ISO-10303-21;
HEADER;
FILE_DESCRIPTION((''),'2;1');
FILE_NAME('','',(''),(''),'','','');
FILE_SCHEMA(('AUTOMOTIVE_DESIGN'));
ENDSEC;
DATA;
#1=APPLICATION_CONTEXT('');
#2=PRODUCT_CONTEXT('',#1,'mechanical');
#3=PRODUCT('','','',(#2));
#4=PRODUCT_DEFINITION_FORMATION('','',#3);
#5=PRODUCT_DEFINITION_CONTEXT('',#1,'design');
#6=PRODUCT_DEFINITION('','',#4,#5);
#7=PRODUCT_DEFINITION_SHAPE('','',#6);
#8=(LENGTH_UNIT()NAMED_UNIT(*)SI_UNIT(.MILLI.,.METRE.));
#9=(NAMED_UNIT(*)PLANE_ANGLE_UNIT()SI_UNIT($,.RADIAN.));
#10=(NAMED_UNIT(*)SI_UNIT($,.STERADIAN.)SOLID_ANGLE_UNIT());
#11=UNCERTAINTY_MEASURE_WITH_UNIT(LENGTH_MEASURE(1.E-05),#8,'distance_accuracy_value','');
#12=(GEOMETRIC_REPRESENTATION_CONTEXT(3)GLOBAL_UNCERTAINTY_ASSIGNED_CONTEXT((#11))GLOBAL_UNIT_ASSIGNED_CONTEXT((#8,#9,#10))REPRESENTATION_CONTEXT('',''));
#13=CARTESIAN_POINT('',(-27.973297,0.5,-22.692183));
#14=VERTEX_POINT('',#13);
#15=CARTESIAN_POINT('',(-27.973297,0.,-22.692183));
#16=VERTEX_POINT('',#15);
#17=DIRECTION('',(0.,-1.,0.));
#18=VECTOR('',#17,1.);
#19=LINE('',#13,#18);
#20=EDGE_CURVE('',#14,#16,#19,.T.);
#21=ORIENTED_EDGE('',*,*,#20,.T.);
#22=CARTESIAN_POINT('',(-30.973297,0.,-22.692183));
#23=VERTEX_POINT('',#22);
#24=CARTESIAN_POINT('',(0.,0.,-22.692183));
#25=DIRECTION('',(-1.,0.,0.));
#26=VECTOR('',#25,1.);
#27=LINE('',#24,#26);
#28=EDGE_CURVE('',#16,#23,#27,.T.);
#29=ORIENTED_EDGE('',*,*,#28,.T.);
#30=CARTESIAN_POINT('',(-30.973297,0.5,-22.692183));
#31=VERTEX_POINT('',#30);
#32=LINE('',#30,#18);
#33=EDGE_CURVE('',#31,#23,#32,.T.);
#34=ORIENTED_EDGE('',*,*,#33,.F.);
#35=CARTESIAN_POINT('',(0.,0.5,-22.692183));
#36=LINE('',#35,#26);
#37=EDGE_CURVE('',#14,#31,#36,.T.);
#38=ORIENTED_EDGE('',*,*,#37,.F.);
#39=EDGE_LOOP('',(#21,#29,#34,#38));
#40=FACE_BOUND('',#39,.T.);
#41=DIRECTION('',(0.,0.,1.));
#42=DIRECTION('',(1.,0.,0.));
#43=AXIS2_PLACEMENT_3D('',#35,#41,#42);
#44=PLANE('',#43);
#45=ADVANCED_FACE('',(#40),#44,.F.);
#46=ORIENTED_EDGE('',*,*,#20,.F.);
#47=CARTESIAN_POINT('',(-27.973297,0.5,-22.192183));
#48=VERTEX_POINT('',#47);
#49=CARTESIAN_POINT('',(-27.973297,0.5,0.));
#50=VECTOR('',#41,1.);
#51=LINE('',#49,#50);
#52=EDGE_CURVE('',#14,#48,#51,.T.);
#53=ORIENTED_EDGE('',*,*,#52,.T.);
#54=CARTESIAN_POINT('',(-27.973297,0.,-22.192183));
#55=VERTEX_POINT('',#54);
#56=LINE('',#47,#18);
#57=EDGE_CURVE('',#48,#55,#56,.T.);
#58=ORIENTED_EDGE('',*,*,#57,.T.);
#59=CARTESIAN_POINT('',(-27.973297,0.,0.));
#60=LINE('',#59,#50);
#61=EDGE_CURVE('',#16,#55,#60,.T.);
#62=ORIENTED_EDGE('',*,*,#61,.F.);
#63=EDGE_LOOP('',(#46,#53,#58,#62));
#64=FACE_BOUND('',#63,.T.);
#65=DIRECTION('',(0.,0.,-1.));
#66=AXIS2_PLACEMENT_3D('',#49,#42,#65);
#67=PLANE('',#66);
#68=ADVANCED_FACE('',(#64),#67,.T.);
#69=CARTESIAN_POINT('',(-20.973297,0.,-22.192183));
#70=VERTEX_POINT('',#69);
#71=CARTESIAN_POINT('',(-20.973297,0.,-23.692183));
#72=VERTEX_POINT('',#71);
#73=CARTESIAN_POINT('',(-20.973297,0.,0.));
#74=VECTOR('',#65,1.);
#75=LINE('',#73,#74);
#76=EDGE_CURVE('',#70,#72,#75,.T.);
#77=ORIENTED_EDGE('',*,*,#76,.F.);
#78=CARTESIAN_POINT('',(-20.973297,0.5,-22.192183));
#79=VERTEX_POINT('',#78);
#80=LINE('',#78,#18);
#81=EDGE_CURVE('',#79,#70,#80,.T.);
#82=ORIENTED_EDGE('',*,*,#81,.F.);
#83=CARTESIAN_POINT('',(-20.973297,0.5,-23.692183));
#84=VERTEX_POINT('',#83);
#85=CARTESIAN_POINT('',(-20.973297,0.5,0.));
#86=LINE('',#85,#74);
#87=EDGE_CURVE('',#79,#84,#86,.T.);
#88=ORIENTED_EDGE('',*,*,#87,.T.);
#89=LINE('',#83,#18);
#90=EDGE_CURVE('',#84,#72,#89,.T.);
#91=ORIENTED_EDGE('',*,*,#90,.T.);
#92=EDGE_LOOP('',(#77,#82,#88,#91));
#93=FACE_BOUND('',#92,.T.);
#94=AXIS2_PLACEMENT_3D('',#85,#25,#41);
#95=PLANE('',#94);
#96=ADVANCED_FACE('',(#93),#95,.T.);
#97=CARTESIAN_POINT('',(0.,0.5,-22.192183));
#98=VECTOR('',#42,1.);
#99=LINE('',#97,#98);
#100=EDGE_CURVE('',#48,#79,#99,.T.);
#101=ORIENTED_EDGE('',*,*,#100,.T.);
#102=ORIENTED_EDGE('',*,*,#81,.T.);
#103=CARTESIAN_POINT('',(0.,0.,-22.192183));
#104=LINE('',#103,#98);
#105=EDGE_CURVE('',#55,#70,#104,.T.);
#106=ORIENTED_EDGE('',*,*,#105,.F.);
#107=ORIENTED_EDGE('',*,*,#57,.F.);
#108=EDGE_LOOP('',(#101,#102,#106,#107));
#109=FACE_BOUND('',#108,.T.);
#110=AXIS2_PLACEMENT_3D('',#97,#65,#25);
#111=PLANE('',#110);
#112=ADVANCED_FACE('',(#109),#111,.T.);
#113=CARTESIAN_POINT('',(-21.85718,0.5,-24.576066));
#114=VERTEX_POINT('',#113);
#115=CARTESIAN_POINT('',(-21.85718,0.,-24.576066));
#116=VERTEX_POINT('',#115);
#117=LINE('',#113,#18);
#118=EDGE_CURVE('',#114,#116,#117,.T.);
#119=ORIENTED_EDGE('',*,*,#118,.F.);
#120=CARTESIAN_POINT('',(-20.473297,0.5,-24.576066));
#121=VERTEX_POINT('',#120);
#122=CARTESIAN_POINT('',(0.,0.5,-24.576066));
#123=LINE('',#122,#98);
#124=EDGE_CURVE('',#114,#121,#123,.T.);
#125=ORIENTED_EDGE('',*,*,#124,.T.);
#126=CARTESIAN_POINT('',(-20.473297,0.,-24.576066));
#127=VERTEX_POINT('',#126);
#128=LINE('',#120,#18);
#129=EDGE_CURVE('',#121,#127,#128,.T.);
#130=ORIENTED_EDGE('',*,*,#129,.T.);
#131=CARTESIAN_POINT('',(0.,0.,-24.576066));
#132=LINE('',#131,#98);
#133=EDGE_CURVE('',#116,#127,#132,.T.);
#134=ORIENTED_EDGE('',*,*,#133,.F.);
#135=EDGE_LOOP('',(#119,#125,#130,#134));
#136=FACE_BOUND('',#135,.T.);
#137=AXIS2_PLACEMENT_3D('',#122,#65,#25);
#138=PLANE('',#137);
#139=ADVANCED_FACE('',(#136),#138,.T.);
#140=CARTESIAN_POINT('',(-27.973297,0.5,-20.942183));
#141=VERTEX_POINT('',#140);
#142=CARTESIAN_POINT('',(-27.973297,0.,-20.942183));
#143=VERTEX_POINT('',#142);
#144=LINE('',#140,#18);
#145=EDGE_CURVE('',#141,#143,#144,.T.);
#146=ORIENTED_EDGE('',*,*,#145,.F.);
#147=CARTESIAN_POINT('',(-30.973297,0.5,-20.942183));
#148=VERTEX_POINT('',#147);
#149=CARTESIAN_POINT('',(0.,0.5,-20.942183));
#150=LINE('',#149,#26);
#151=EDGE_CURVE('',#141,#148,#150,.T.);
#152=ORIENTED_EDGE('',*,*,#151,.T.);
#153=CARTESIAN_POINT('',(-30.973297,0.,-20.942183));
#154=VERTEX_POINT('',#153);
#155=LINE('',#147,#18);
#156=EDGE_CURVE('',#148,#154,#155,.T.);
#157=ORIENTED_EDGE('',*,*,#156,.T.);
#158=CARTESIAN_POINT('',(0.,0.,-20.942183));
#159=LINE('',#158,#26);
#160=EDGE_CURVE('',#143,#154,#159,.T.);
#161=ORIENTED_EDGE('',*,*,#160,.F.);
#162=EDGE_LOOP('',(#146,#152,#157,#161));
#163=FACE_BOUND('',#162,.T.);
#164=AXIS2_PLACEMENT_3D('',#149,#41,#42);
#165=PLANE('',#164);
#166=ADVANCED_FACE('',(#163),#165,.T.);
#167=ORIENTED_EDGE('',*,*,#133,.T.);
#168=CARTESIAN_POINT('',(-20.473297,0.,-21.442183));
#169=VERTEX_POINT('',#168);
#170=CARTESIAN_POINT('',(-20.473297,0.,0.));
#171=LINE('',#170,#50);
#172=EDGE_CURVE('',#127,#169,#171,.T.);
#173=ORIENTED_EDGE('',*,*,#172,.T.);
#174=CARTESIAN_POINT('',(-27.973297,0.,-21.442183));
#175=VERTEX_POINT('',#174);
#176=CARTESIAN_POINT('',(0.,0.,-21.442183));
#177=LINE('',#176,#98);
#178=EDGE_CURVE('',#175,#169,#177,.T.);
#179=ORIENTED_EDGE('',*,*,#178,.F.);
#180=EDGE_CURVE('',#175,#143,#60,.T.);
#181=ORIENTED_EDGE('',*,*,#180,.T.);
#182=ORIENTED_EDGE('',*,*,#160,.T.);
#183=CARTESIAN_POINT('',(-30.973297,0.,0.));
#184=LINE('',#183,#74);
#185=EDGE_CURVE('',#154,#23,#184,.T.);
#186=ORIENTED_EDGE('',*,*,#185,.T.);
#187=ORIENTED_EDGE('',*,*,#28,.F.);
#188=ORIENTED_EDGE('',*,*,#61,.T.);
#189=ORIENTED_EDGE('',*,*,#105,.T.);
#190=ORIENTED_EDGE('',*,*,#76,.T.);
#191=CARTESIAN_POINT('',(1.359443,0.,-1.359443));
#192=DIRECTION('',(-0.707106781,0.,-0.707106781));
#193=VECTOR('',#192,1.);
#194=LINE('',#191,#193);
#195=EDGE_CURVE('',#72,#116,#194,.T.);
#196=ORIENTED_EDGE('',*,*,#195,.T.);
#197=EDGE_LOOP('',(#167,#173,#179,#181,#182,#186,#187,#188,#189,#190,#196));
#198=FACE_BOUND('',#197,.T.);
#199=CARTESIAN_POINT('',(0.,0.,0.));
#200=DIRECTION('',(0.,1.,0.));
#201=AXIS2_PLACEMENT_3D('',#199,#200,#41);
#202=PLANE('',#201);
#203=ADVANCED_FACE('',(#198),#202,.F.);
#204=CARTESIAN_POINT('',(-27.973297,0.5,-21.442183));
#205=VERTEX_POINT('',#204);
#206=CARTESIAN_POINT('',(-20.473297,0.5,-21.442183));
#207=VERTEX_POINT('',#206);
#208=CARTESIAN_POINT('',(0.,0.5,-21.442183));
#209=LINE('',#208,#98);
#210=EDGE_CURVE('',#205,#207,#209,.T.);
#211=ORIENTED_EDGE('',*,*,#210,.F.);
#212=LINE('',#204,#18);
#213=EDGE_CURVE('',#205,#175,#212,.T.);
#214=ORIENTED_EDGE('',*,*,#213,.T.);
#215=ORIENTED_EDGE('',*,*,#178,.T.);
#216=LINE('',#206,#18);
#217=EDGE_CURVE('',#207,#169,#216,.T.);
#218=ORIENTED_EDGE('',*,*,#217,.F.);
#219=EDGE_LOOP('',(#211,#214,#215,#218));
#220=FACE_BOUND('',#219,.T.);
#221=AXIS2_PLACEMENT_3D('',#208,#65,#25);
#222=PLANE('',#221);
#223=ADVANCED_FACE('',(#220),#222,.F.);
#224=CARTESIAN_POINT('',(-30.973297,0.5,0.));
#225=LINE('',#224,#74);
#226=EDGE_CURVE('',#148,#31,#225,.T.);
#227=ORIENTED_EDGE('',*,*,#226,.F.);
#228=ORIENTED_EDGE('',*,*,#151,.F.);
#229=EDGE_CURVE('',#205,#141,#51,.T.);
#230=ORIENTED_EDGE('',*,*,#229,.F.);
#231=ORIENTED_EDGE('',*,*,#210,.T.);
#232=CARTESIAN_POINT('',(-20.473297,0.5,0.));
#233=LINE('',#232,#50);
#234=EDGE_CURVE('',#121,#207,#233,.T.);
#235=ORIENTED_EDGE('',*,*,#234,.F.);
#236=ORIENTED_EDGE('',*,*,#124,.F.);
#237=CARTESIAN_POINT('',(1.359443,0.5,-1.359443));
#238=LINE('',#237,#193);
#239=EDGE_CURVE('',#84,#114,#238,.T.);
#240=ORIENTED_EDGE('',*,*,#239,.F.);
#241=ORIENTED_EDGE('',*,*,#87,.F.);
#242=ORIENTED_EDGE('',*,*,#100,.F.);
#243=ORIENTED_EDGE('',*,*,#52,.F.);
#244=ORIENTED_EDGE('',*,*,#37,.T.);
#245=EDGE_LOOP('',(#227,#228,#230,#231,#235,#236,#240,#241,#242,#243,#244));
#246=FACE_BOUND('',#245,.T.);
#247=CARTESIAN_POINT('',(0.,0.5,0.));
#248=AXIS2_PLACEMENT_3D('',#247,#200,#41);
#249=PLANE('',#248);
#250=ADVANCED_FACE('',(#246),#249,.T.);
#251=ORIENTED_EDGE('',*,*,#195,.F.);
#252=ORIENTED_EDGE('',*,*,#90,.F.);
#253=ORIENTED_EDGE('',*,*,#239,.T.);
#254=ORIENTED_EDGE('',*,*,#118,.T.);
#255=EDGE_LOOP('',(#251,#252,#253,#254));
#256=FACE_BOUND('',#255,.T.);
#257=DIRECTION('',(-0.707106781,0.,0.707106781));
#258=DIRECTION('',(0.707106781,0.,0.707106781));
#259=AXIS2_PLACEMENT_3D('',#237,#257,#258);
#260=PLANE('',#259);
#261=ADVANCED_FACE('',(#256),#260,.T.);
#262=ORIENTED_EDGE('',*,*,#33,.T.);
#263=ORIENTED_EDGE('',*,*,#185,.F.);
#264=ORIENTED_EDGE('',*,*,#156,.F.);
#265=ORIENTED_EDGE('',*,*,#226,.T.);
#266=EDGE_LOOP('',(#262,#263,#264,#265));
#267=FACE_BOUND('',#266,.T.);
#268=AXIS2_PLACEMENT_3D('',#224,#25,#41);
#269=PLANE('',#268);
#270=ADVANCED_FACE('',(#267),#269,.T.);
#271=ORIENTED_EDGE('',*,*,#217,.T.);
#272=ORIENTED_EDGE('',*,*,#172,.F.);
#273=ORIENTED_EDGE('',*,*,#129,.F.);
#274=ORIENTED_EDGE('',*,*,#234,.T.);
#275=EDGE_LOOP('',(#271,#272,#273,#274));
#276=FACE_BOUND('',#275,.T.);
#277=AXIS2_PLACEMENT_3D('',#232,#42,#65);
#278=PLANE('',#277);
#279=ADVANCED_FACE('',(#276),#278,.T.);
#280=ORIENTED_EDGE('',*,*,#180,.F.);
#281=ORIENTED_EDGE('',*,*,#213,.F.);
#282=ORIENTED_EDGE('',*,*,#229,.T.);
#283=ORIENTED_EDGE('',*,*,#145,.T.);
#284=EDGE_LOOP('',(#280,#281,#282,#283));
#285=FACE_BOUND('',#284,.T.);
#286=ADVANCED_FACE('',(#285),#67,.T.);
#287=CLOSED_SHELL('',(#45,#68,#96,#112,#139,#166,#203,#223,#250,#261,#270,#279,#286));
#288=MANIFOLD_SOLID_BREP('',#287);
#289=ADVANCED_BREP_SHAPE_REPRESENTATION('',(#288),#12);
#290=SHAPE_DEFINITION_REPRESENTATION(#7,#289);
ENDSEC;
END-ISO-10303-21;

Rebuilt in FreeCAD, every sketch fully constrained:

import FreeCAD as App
import Part
import Sketcher
from FreeCAD import Vector
Q = App.Units.Quantity


def add_polygon(sketch, points):
    """Adds a closed chain of lines whose ends are joined by coincident constraints."""
    first, n = sketch.GeometryCount, len(points)
    for a, b in zip(points, points[1:] + points[:1]):
        sketch.addGeometry(Part.LineSegment(App.Vector(*a, 0), App.Vector(*b, 0)), False)
    for i in range(n):
        sketch.addConstraint(Sketcher.Constraint("Coincident", first + i, 2, first + (i + 1) % n, 1))

doc = App.newDocument("Part")
params = doc.addObject("Spreadsheet::Sheet", "Params")
for row, (alias, value) in enumerate([
    ("sketch1_width", "3 mm"),
    ("sketch1_width2", "7 mm"),
    ("sketch1_width3", "7.5 mm"),
    ("sketch1_height", "0.5 mm"),
    ("sketch1_height2", "1.5 mm"),
    ("pad1_length", "0.5 mm"),
], start=1):
    params.set(f"A{row}", alias)
    params.set(f"B{row}", "=" + value)
    params.setAlias(f"B{row}", alias)

body = doc.addObject("PartDesign::Body", "Body")

sketch1 = body.newObject("Sketcher::SketchObject", "Sketch")
sketch1.AttachmentSupport = (doc.getObject("XZ_Plane"), [""])
sketch1.MapMode = "FlatFace"
add_polygon(sketch1, [(-31, -22.7), (-31, -20.9), (-28, -20.9), (-28, -21.4), (-20.5, -21.4), (-20.5, -24.6), (-21.9, -24.6), (-21, -23.7), (-21, -22.2), (-28, -22.2), (-28, -22.7)])
sketch1.addConstraint(Sketcher.Constraint("Vertical", 0))
sketch1.addConstraint(Sketcher.Constraint("Horizontal", 1))
sketch1.addConstraint(Sketcher.Constraint("Vertical", 2))
sketch1.addConstraint(Sketcher.Constraint("Horizontal", 3))
sketch1.addConstraint(Sketcher.Constraint("Vertical", 4))
sketch1.addConstraint(Sketcher.Constraint("Horizontal", 5))
sketch1.addConstraint(Sketcher.Constraint("Vertical", 7))
sketch1.addConstraint(Sketcher.Constraint("Horizontal", 8))
sketch1.addConstraint(Sketcher.Constraint("Vertical", 9))
sketch1.addConstraint(Sketcher.Constraint("Horizontal", 10))
sketch1.addConstraint(Sketcher.Constraint("Vertical", 2, 2, 8, 2))
sketch1.addConstraint(Sketcher.Constraint("Equal", 2, 9))
sketch1.addConstraint(Sketcher.Constraint("DistanceX", 1, 1, 1, 2, 3.0))
sketch1.addConstraint(Sketcher.Constraint("DistanceX", 8, 2, 8, 1, 7.0))
sketch1.addConstraint(Sketcher.Constraint("Angle", 6, Q("45 deg")))
sketch1.addConstraint(Sketcher.Constraint("DistanceX", 3, 1, 3, 2, 7.5))
sketch1.addConstraint(Sketcher.Constraint("DistanceY", 2, 2, 2, 1, 0.5))
sketch1.addConstraint(Sketcher.Constraint("DistanceY", 7, 1, 7, 2, 1.5))
sketch1.addConstraint(Sketcher.Constraint("DistanceY", 0, 1, 0, 2, 1.75))
sketch1.addConstraint(Sketcher.Constraint("Distance", 6, 1.25))
sketch1.addConstraint(Sketcher.Constraint("DistanceX", 5, 2, -1, 1, 21.85718))
sketch1.addConstraint(Sketcher.Constraint("DistanceY", 0, 2, -1, 1, 20.942183))
sketch1.setExpression("Constraints[23]", "Params.sketch1_width")
sketch1.setExpression("Constraints[24]", "Params.sketch1_width2")
sketch1.setExpression("Constraints[26]", "Params.sketch1_width3")
sketch1.setExpression("Constraints[27]", "Params.sketch1_height")
sketch1.setExpression("Constraints[28]", "Params.sketch1_height2")
pad1 = body.newObject("PartDesign::Pad", "Pad")
pad1.Profile = sketch1
pad1.setExpression("Length", "Params.pad1_length")
pad1.Reversed = True

doc.recompute()
